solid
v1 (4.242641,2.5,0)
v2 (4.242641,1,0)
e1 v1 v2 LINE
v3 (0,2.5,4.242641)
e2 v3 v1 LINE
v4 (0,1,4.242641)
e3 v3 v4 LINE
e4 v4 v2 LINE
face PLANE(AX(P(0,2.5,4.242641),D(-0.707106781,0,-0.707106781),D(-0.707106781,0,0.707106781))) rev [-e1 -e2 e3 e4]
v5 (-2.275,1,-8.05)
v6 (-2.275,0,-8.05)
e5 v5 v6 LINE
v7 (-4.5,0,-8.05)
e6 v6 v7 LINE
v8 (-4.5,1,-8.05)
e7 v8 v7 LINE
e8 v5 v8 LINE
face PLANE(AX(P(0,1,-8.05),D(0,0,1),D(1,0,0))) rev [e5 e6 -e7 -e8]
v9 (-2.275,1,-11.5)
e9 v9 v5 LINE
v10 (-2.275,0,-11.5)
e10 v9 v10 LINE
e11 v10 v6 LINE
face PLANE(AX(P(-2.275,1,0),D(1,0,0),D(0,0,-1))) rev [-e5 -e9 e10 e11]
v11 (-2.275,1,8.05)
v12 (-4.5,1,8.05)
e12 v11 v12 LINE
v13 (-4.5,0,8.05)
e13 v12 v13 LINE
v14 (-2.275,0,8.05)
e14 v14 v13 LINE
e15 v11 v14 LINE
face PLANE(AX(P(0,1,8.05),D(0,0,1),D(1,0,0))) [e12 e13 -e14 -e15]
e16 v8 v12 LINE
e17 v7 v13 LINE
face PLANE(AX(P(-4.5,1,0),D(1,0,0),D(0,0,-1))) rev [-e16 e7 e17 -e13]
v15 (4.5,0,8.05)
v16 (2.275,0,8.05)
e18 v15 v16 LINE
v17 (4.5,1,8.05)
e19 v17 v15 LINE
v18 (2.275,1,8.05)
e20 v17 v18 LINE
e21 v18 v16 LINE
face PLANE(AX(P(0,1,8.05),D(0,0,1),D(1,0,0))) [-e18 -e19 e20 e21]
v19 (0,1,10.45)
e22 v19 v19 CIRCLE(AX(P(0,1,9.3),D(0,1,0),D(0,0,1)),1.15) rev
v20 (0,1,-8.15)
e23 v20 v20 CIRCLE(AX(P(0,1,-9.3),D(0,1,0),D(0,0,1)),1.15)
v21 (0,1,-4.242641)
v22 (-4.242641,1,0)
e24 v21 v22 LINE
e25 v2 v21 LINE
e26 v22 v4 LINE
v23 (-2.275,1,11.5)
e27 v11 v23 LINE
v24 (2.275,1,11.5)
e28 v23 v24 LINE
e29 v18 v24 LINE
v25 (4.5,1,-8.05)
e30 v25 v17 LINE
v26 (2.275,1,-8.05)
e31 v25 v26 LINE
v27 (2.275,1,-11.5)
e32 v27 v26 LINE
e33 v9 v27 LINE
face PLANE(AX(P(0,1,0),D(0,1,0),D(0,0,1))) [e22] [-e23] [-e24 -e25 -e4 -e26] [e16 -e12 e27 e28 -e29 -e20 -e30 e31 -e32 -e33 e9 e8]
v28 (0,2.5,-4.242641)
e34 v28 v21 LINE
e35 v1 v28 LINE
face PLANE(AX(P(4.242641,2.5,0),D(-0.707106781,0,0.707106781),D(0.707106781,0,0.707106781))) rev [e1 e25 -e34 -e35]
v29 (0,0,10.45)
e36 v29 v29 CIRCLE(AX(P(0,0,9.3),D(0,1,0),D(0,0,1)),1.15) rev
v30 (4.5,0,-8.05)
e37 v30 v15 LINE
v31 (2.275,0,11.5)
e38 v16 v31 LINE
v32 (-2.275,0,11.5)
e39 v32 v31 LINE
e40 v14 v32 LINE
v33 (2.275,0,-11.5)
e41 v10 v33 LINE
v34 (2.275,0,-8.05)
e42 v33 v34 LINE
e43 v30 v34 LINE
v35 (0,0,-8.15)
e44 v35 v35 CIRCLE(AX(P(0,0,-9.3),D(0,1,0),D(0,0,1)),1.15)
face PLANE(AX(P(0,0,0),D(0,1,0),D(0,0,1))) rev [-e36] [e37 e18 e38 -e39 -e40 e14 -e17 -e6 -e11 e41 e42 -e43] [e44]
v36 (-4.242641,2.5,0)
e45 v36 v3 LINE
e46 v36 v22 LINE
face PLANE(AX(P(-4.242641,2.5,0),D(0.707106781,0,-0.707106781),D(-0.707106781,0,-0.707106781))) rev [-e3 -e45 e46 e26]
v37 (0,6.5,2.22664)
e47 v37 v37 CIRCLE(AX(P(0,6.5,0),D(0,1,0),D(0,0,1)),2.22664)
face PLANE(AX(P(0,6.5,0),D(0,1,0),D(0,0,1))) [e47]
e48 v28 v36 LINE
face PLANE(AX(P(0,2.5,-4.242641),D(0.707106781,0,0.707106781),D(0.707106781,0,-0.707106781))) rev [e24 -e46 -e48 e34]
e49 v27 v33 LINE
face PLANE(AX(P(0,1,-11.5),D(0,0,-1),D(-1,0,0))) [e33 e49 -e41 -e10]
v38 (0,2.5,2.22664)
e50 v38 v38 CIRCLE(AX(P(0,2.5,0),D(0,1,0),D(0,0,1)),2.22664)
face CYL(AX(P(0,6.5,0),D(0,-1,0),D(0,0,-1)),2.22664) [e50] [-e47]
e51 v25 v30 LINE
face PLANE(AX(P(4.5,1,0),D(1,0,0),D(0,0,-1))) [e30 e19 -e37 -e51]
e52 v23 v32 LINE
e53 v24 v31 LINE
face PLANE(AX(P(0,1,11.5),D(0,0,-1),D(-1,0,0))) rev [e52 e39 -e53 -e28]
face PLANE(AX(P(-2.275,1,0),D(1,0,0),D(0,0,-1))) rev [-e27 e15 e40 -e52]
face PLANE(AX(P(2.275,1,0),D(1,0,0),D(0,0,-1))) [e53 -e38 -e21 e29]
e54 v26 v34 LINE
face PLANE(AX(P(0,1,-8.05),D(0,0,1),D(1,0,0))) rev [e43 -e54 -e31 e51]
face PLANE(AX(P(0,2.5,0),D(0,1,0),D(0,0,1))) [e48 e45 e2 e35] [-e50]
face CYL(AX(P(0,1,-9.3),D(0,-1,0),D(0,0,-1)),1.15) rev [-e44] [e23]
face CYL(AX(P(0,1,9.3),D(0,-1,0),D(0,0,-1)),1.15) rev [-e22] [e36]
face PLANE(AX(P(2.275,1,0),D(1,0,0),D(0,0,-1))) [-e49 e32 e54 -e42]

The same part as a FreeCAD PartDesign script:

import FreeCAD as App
import Part
import Sketcher

V = App.Vector
Q = App.Units.Quantity

doc = App.newDocument("Part")
body = doc.addObject("PartDesign::Body", "Body")

# Sketch on XZ plane
sketch1 = doc.addObject("Sketcher::SketchObject", "Sketch")
body.addObject(sketch1)
sketch1.AttachmentSupport = (doc.XZ_Plane, [""])
sketch1.MapMode = "FlatFace"
sketch1.addGeometry(Part.LineSegment(V(-4.5, -8.1, 0), V(-4.5, 8.1, 0)), False)
sketch1.addGeometry(Part.LineSegment(V(-4.5, 8.1, 0), V(-2.3, 8.1, 0)), False)
sketch1.addGeometry(Part.LineSegment(V(-2.3, 8.1, 0), V(-2.3, 11.5, 0)), False)
sketch1.addGeometry(Part.LineSegment(V(-2.3, 11.5, 0), V(2.3, 11.5, 0)), False)
sketch1.addGeometry(Part.LineSegment(V(2.3, 11.5, 0), V(2.3, 8.1, 0)), False)
sketch1.addGeometry(Part.LineSegment(V(2.3, 8.1, 0), V(4.5, 8.1, 0)), False)
sketch1.addGeometry(Part.LineSegment(V(4.5, 8.1, 0), V(4.5, -8.1, 0)), False)
sketch1.addGeometry(Part.LineSegment(V(4.5, -8.1, 0), V(2.3, -8.1, 0)), False)
sketch1.addGeometry(Part.LineSegment(V(2.3, -8.1, 0), V(2.3, -11.5, 0)), False)
sketch1.addGeometry(Part.LineSegment(V(2.3, -11.5, 0), V(-2.3, -11.5, 0)), False)
sketch1.addGeometry(Part.LineSegment(V(-2.3, -11.5, 0), V(-2.3, -8.1, 0)), False)
sketch1.addGeometry(Part.LineSegment(V(-2.3, -8.1, 0), V(-4.5, -8.1, 0)), False)
sketch1.addGeometry(Part.Circle(V(0, -9.3, 0), V(0, 0, 1), 1.1), False)
sketch1.addGeometry(Part.Circle(V(0, 9.3, 0), V(0, 0, 1), 1.1), False)
sketch1.addConstraint(Sketcher.Constraint("Coincident", 0, 2, 1, 1))
sketch1.addConstraint(Sketcher.Constraint("Coincident", 1, 2, 2, 1))
sketch1.addConstraint(Sketcher.Constraint("Coincident", 2, 2, 3, 1))
sketch1.addConstraint(Sketcher.Constraint("Coincident", 3, 2, 4, 1))
sketch1.addConstraint(Sketcher.Constraint("Coincident", 4, 2, 5, 1))
sketch1.addConstraint(Sketcher.Constraint("Coincident", 5, 2, 6, 1))
sketch1.addConstraint(Sketcher.Constraint("Coincident", 6, 2, 7, 1))
sketch1.addConstraint(Sketcher.Constraint("Coincident", 7, 2, 8, 1))
sketch1.addConstraint(Sketcher.Constraint("Coincident", 8, 2, 9, 1))
sketch1.addConstraint(Sketcher.Constraint("Coincident", 9, 2, 10, 1))
sketch1.addConstraint(Sketcher.Constraint("Coincident", 10, 2, 11, 1))
sketch1.addConstraint(Sketcher.Constraint("Coincident", 11, 2, 0, 1))
sketch1.addConstraint(Sketcher.Constraint("Vertical", 0))
sketch1.addConstraint(Sketcher.Constraint("Horizontal", 1))
sketch1.addConstraint(Sketcher.Constraint("Vertical", 2))
sketch1.addConstraint(Sketcher.Constraint("Horizontal", 3))
sketch1.addConstraint(Sketcher.Constraint("Vertical", 4))
sketch1.addConstraint(Sketcher.Constraint("Horizontal", 5))
sketch1.addConstraint(Sketcher.Constraint("Vertical", 6))
sketch1.addConstraint(Sketcher.Constraint("Horizontal", 7))
sketch1.addConstraint(Sketcher.Constraint("Vertical", 8))
sketch1.addConstraint(Sketcher.Constraint("Horizontal", 9))
sketch1.addConstraint(Sketcher.Constraint("Vertical", 10))
sketch1.addConstraint(Sketcher.Constraint("Horizontal", 11))
sketch1.addConstraint(Sketcher.Constraint("Equal", 12, 13))
sketch1.addConstraint(Sketcher.Constraint("Symmetric", 12, 3, 13, 3, -1, 1))
sketch1.addConstraint(Sketcher.Constraint("Symmetric", 0, 2, 6, 2, -1, 1))
sketch1.addConstraint(Sketcher.Constraint("Symmetric", 2, 2, 8, 2, -1, 1))
sketch1.addConstraint(Sketcher.Constraint("Symmetric", 4, 2, 10, 2, -1, 1))
sketch1.addConstraint(Sketcher.Constraint("Symmetric", 1, 2, 4, 2, -2))
sketch1.addConstraint(Sketcher.Constraint("PointOnObject", 12, 3, -2))
sketch1.addConstraint(Sketcher.Constraint("Diameter", 12, Q("2.3 mm")))
sketch1.addConstraint(Sketcher.Constraint("DistanceY", 0, 1, 0, 2, Q("16.1 mm")))
sketch1.addConstraint(Sketcher.Constraint("DistanceX", 3, 1, 3, 2, Q("4.55 mm")))
sketch1.addConstraint(Sketcher.Constraint("DistanceY", 2, 1, 2, 2, Q("3.45 mm")))
sketch1.addConstraint(Sketcher.Constraint("DistanceY", 12, 3, -1, 1, Q("9.3 mm")))
sketch1.addConstraint(Sketcher.Constraint("DistanceX", 0, 2, -1, 1, Q("4.5 mm")))
pad1 = doc.addObject("PartDesign::Pad", "Pad")
body.addObject(pad1)
pad1.Profile = sketch1
pad1.Length = 1
pad1.Reversed = True

# Sketch on XZ plane
sketch2 = doc.addObject("Sketcher::SketchObject", "Sketch001")
body.addObject(sketch2)
sketch2.AttachmentSupport = (doc.XZ_Plane, [""])
sketch2.MapMode = "FlatFace"
sketch2.AttachmentOffset = App.Placement(V(0, 0, -1), App.Rotation())
sketch2.addGeometry(Part.LineSegment(V(0, 4, 0), V(4, 0, 0)), False)
sketch2.addGeometry(Part.LineSegment(V(4, 0, 0), V(0, -4, 0)), False)
sketch2.addGeometry(Part.LineSegment(V(0, -4, 0), V(-4, 0, 0)), False)
sketch2.addGeometry(Part.LineSegment(V(-4, 0, 0), V(0, 4, 0)), False)
sketch2.addConstraint(Sketcher.Constraint("Coincident", 0, 2, 1, 1))
sketch2.addConstraint(Sketcher.Constraint("Coincident", 1, 2, 2, 1))
sketch2.addConstraint(Sketcher.Constraint("Coincident", 2, 2, 3, 1))
sketch2.addConstraint(Sketcher.Constraint("Coincident", 3, 2, 0, 1))
sketch2.addConstraint(Sketcher.Constraint("Symmetric", 0, 2, 2, 2, -1, 1))
sketch2.addConstraint(Sketcher.Constraint("Symmetric", 1, 2, 3, 2, -1, 1))
sketch2.addConstraint(Sketcher.Constraint("PointOnObject", 0, 2, -1))
sketch2.addConstraint(Sketcher.Constraint("PointOnObject", 1, 2, -2))
sketch2.addConstraint(Sketcher.Constraint("Perpendicular", 0, 1))
sketch2.addConstraint(Sketcher.Constraint("Distance", 0, Q("6 mm")))
pad2 = doc.addObject("PartDesign::Pad", "Pad001")
body.addObject(pad2)
pad2.Profile = sketch2
pad2.Length = 1.5
pad2.Reversed = True

# Sketch on XZ plane
sketch3 = doc.addObject("Sketcher::SketchObject", "Sketch002")
body.addObject(sketch3)
sketch3.AttachmentSupport = (doc.XZ_Plane, [""])
sketch3.MapMode = "FlatFace"
sketch3.AttachmentOffset = App.Placement(V(0, 0, -2.5), App.Rotation())
sketch3.addGeometry(Part.Circle(V(0, 0, 0), V(0, 0, 1), 2.2), False)
sketch3.addConstraint(Sketcher.Constraint("Coincident", 0, 3, -1, 1))
sketch3.addConstraint(Sketcher.Constraint("Diameter", 0, Q("4.45328 mm")))
pad3 = doc.addObject("PartDesign::Pad", "Pad002")
body.addObject(pad3)
pad3.Profile = sketch3
pad3.Length = 4
pad3.Reversed = True

doc.recompute()
